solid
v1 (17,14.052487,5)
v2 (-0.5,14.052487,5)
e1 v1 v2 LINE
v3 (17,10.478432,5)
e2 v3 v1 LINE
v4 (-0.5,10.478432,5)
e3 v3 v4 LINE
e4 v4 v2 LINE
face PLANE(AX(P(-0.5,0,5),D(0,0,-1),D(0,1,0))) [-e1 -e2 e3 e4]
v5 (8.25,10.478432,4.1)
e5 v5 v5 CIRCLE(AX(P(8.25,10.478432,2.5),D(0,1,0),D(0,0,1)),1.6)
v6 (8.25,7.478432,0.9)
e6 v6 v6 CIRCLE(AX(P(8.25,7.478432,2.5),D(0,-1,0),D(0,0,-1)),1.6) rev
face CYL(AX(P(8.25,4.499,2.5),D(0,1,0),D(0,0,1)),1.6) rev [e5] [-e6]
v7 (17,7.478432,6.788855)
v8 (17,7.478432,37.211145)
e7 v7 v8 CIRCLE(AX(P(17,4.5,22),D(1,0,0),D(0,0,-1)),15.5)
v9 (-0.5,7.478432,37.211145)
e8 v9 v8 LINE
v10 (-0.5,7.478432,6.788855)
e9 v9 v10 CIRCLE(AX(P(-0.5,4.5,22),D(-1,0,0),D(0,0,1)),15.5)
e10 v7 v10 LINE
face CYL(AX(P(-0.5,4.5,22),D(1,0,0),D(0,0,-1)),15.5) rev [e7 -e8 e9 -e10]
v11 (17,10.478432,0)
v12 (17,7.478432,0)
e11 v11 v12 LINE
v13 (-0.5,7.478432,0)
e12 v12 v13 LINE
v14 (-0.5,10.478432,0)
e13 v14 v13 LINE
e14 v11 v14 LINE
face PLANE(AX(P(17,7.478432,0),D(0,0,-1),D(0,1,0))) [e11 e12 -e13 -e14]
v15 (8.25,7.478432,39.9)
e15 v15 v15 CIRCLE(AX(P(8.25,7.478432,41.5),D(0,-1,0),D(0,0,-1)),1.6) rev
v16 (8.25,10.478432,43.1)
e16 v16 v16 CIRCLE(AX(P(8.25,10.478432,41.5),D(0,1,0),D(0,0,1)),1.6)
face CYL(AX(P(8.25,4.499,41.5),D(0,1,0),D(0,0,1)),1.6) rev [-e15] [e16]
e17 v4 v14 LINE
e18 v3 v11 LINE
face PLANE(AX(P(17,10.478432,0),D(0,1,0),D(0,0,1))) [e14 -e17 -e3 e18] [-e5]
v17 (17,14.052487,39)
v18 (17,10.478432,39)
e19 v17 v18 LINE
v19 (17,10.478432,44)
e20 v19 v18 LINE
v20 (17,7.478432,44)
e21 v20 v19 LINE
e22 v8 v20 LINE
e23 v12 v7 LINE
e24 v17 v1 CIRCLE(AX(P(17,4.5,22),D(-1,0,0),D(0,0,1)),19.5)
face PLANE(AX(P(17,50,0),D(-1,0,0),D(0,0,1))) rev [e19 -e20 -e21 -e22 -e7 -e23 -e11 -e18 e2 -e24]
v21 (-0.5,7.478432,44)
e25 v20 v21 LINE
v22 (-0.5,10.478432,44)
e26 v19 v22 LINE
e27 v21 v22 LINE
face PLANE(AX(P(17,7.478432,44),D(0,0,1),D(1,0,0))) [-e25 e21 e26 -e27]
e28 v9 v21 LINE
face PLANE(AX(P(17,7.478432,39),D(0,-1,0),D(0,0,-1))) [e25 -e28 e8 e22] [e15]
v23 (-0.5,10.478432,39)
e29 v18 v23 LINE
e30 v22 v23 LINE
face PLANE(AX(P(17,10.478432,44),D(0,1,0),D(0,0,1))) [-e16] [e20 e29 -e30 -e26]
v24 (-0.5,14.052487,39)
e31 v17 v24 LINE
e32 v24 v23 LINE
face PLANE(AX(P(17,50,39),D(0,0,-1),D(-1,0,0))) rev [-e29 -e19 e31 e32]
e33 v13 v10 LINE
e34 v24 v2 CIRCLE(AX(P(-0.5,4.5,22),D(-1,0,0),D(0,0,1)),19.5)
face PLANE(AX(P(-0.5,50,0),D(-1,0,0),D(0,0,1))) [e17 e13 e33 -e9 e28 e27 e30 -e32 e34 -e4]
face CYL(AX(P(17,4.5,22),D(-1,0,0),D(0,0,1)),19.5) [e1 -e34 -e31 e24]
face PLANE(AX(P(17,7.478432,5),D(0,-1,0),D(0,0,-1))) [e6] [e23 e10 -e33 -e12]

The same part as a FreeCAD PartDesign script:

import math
import FreeCAD as App
import Part
import Sketcher
from FreeCAD import Vector
Q = App.Units.Quantity

doc = App.newDocument("Part")
body = doc.addObject("PartDesign::Body", "Body")

# Sketch on XZ plane
sketch1 = body.newObject("Sketcher::SketchObject", "Sketch")
sketch1.AttachmentSupport = (doc.getObject("XZ_Plane"), [""])
sketch1.MapMode = "FlatFace"
sketch1.addGeometry(Part.LineSegment(Vector(0, 0, 0), Vector(0, 40, 0)), False)
sketch1.addGeometry(Part.LineSegment(Vector(0, 40, 0), Vector(17, 40, 0)), False)
sketch1.addGeometry(Part.LineSegment(Vector(17, 40, 0), Vector(17, 0, 0)), False)
sketch1.addGeometry(Part.LineSegment(Vector(17, 0, 0), Vector(0, 0, 0)), False)
sketch1.addConstraint(Sketcher.Constraint("Coincident", 0, 2, 1, 1))
sketch1.addConstraint(Sketcher.Constraint("Coincident", 1, 2, 2, 1))
sketch1.addConstraint(Sketcher.Constraint("Coincident", 2, 2, 3, 1))
sketch1.addConstraint(Sketcher.Constraint("Coincident", 3, 2, 0, 1))
sketch1.addConstraint(Sketcher.Constraint("Vertical", 0))
sketch1.addConstraint(Sketcher.Constraint("Horizontal", 1))
sketch1.addConstraint(Sketcher.Constraint("Vertical", 2))
sketch1.addConstraint(Sketcher.Constraint("Horizontal", 3))
sketch1.addConstraint(Sketcher.Constraint("Coincident", 3, 2, -1, 1))
sketch1.addConstraint(Sketcher.Constraint("DistanceX", 1, 1, 1, 2, Q("17 mm")))
sketch1.addConstraint(Sketcher.Constraint("DistanceY", 0, 1, 0, 2, Q("40 mm")))
pad1 = body.newObject("PartDesign::Pad", "Pad")
pad1.Profile = sketch1
pad1.Length = 50
pad1.Reversed = True

# Sketch on XZ plane
sketch2 = body.newObject("Sketcher::SketchObject", "Sketch001")
sketch2.AttachmentSupport = (doc.getObject("XZ_Plane"), [""])
sketch2.MapMode = "FlatFace"
sketch2.addGeometry(Part.LineSegment(Vector(0, 40, 0), Vector(0, 39, 0)), False)
sketch2.addGeometry(Part.LineSegment(Vector(0, 39, 0), Vector(17, 39, 0)), False)
sketch2.addGeometry(Part.LineSegment(Vector(17, 39, 0), Vector(17, 40, 0)), False)
sketch2.addGeometry(Part.LineSegment(Vector(17, 40, 0), Vector(0, 40, 0)), False)
sketch2.addConstraint(Sketcher.Constraint("Coincident", 0, 2, 1, 1))
sketch2.addConstraint(Sketcher.Constraint("Coincident", 1, 2, 2, 1))
sketch2.addConstraint(Sketcher.Constraint("Coincident", 2, 2, 3, 1))
sketch2.addConstraint(Sketcher.Constraint("Coincident", 3, 2, 0, 1))
sketch2.addConstraint(Sketcher.Constraint("Vertical", 0))
sketch2.addConstraint(Sketcher.Constraint("Horizontal", 1))
sketch2.addConstraint(Sketcher.Constraint("Vertical", 2))
sketch2.addConstraint(Sketcher.Constraint("Horizontal", 3))
sketch2.addConstraint(Sketcher.Constraint("PointOnObject", 0, 2, -2))
sketch2.addConstraint(Sketcher.Constraint("DistanceX", 1, 1, 1, 2, Q("17 mm")))
sketch2.addConstraint(Sketcher.Constraint("DistanceY", 0, 2, 0, 1, Q("1 mm")))
sketch2.addConstraint(Sketcher.Constraint("DistanceY", -1, 1, 0, 2, Q("39 mm")))
pocket1 = body.newObject("PartDesign::Pocket", "Pocket")
pocket1.Profile = sketch2
pocket1.Type = "ThroughAll"

# Sketch on XZ plane
sketch3 = body.newObject("Sketcher::SketchObject", "Sketch002")
sketch3.AttachmentSupport = (doc.getObject("XZ_Plane"), [""])
sketch3.MapMode = "FlatFace"
sketch3.addGeometry(Part.LineSegment(Vector(-0.5, 39, 0), Vector(-0.5, 0, 0)), False)
sketch3.addGeometry(Part.LineSegment(Vector(-0.5, 0, 0), Vector(0, 0, 0)), False)
sketch3.addGeometry(Part.LineSegment(Vector(0, 0, 0), Vector(0, 39, 0)), False)
sketch3.addGeometry(Part.LineSegment(Vector(0, 39, 0), Vector(-0.5, 39, 0)), False)
sketch3.addConstraint(Sketcher.Constraint("Coincident", 0, 2, 1, 1))
sketch3.addConstraint(Sketcher.Constraint("Coincident", 1, 2, 2, 1))
sketch3.addConstraint(Sketcher.Constraint("Coincident", 2, 2, 3, 1))
sketch3.addConstraint(Sketcher.Constraint("Coincident", 3, 2, 0, 1))
sketch3.addConstraint(Sketcher.Constraint("Vertical", 0))
sketch3.addConstraint(Sketcher.Constraint("Horizontal", 1))
sketch3.addConstraint(Sketcher.Constraint("Vertical", 2))
sketch3.addConstraint(Sketcher.Constraint("Horizontal", 3))
sketch3.addConstraint(Sketcher.Constraint("Coincident", 1, 2, -1, 1))
sketch3.addConstraint(Sketcher.Constraint("DistanceY", 0, 2, 0, 1, Q("39 mm")))
sketch3.addConstraint(Sketcher.Constraint("DistanceX", 1, 1, 1, 2, Q("0.5 mm")))
pad2 = body.newObject("PartDesign::Pad", "Pad001")
pad2.Profile = sketch3
pad2.Length = 50
pad2.Reversed = True

# Sketch on YZ plane
sketch4 = body.newObject("Sketcher::SketchObject", "Sketch003")
sketch4.AttachmentSupport = (doc.getObject("YZ_Plane"), [""])
sketch4.MapMode = "FlatFace"
sketch4.AttachmentOffset = App.Placement(Vector(0, 0, 17), App.Rotation())
sketch4.addGeometry(Part.Circle(Vector(4, 22, 0), Vector(0, 0, 1), 16), False)
sketch4.addConstraint(Sketcher.Constraint("Diameter", 0, Q("31 mm")))
sketch4.addConstraint(Sketcher.Constraint("DistanceY", -1, 1, 0, 3, Q("22 mm")))
sketch4.addConstraint(Sketcher.Constraint("DistanceX", -1, 1, 0, 3, Q("4.5 mm")))
pocket2 = body.newObject("PartDesign::Pocket", "Pocket001")
pocket2.Profile = sketch4
pocket2.Length = 17.5

# Sketch on YZ plane
sketch5 = body.newObject("Sketcher::SketchObject", "Sketch004")
sketch5.AttachmentSupport = (doc.getObject("YZ_Plane"), [""])
sketch5.MapMode = "FlatFace"
sketch5.AttachmentOffset = App.Placement(Vector(0, 0, 17), App.Rotation())
sketch5.addGeometry(Part.LineSegment(Vector(3, 0, 0), Vector(50, 0, 0)), False)
sketch5.addGeometry(Part.LineSegment(Vector(50, 0, 0), Vector(50, 39, 0)), False)
sketch5.addGeometry(Part.LineSegment(Vector(50, 39, 0), Vector(24, 39, 0)), False)
sketch5.addGeometry(Part.LineSegment(Vector(24, 39, 0), Vector(24, 5, 0)), False)
sketch5.addGeometry(Part.LineSegment(Vector(24, 5, 0), Vector(3, 5, 0)), False)
sketch5.addGeometry(Part.LineSegment(Vector(3, 5, 0), Vector(3, 0, 0)), False)
sketch5.addConstraint(Sketcher.Constraint("Coincident", 0, 2, 1, 1))
sketch5.addConstraint(Sketcher.Constraint("Coincident", 1, 2, 2, 1))
sketch5.addConstraint(Sketcher.Constraint("Coincident", 2, 2, 3, 1))
sketch5.addConstraint(Sketcher.Constraint("Coincident", 3, 2, 4, 1))
sketch5.addConstraint(Sketcher.Constraint("Coincident", 4, 2, 5, 1))
sketch5.addConstraint(Sketcher.Constraint("Coincident", 5, 2, 0, 1))
sketch5.addConstraint(Sketcher.Constraint("Horizontal", 0))
sketch5.addConstraint(Sketcher.Constraint("Vertical", 1))
sketch5.addConstraint(Sketcher.Constraint("Horizontal", 2))
sketch5.addConstraint(Sketcher.Constraint("Vertical", 3))
sketch5.addConstraint(Sketcher.Constraint("Horizontal", 4))
sketch5.addConstraint(Sketcher.Constraint("Vertical", 5))
sketch5.addConstraint(Sketcher.Constraint("PointOnObject", 0, 2, -1))
sketch5.addConstraint(Sketcher.Constraint("DistanceX", 0, 1, 0, 2, Q("47 mm")))
sketch5.addConstraint(Sketcher.Constraint("DistanceX", 2, 2, 2, 1, Q("26 mm")))
sketch5.addConstraint(Sketcher.Constraint("DistanceY", 1, 1, 1, 2, Q("39 mm")))
sketch5.addConstraint(Sketcher.Constraint("DistanceY", 3, 2, 3, 1, Q("34 mm")))
sketch5.addConstraint(Sketcher.Constraint("DistanceX", -1, 1, 0, 2, Q("50 mm")))
pocket3 = body.newObject("PartDesign::Pocket", "Pocket002")
pocket3.Profile = sketch5
pocket3.Length = 17.5

# Sketch on XZ plane
sketch6 = body.newObject("Sketcher::SketchObject", "Sketch005")
sketch6.AttachmentSupport = (doc.getObject("XZ_Plane"), [""])
sketch6.MapMode = "FlatFace"
sketch6.AttachmentOffset = App.Placement(Vector(0, 0, -3), App.Rotation())
sketch6.addGeometry(Part.ArcOfCircle(Part.Circle(Vector(8.2, 2.5, 0), Vector(0, 0, 1), 1.6), math.radians(90), math.radians(270)), False)
sketch6.addGeometry(Part.ArcOfCircle(Part.Circle(Vector(8.2, 2.5, 0), Vector(0, 0, 1), 1.6), math.radians(0), math.radians(90)), False)
sketch6.addGeometry(Part.ArcOfCircle(Part.Circle(Vector(8.2, 2.5, 0), Vector(0, 0, 1), 1.6), math.radians(-90), math.radians(0)), False)
sketch6.addConstraint(Sketcher.Constraint("Tangent", 0, 1, 1, 2))
sketch6.addConstraint(Sketcher.Constraint("Tangent", 1, 1, 2, 2))
sketch6.addConstraint(Sketcher.Constraint("Tangent", 2, 1, 0, 2))
sketch6.addConstraint(Sketcher.Constraint("Horizontal", 2, 3, 1, 1))
sketch6.addConstraint(Sketcher.Constraint("Vertical", 2, 3, 0, 1))
sketch6.addConstraint(Sketcher.Constraint("Vertical", 0, 1, 2, 1))
sketch6.addConstraint(Sketcher.Constraint("Radius", 0, Q("1.6 mm")))
sketch6.addConstraint(Sketcher.Constraint("DistanceY", -1, 1, 0, 3, Q("2.5 mm")))
sketch6.addConstraint(Sketcher.Constraint("DistanceX", -1, 1, 0, 3, Q("8.25 mm")))
pocket4 = body.newObject("PartDesign::Pocket", "Pocket003")
pocket4.Profile = sketch6
pocket4.Length = 3
pocket4.Reversed = True

# Sketch on YZ plane
sketch7 = body.newObject("Sketcher::SketchObject", "Sketch006")
sketch7.AttachmentSupport = (doc.getObject("YZ_Plane"), [""])
sketch7.MapMode = "FlatFace"
sketch7.AttachmentOffset = App.Placement(Vector(0, 0, 63.5), App.Rotation())
sketch7.addGeometry(Part.LineSegment(Vector(4.5, -8.6, 0), Vector(-28.4, 17.3, 0)), False)
sketch7.addGeometry(Part.LineSegment(Vector(-28.4, 17.3, 0), Vector(0, 39, 0)), False)
sketch7.addGeometry(Part.LineSegment(Vector(0, 39, 0), Vector(4.5, 39, 0)), False)
sketch7.addGeometry(Part.LineSegment(Vector(4.5, 39, 0), Vector(4.5, 37.5, 0)), False)
sketch7.addGeometry(Part.ArcOfCircle(Part.Circle(Vector(4.5, 22, 0), Vector(0, 0, 1), 15.5), math.radians(-90), math.radians(90)), False)
sketch7.addGeometry(Part.LineSegment(Vector(4.5, 6.5, 0), Vector(4.5, -8.6, 0)), False)
sketch7.addConstraint(Sketcher.Constraint("Coincident", 0, 2, 1, 1))
sketch7.addConstraint(Sketcher.Constraint("Coincident", 1, 2, 2, 1))
sketch7.addConstraint(Sketcher.Constraint("Coincident", 2, 2, 3, 1))
sketch7.addConstraint(Sketcher.Constraint("Coincident", 3, 2, 4, 2))
sketch7.addConstraint(Sketcher.Constraint("Coincident", 4, 1, 5, 1))
sketch7.addConstraint(Sketcher.Constraint("Coincident", 5, 2, 0, 1))
sketch7.addConstraint(Sketcher.Constraint("Horizontal", 2))
sketch7.addConstraint(Sketcher.Constraint("Vertical", 3))
sketch7.addConstraint(Sketcher.Constraint("Vertical", 5))
sketch7.addConstraint(Sketcher.Constraint("PointOnObject", 1, 2, -2))
sketch7.addConstraint(Sketcher.Constraint("Vertical", 4, 3, 2, 2))
sketch7.addConstraint(Sketcher.Constraint("Vertical", 3, 2, 4, 1))
sketch7.addConstraint(Sketcher.Constraint("Radius", 4, Q("15.5 mm")))
sketch7.addConstraint(Sketcher.Constraint("DistanceX", 2, 1, 2, 2, Q("4.5 mm")))
sketch7.addConstraint(Sketcher.Constraint("DistanceY", 3, 2, 3, 1, Q("1.5 mm")))
sketch7.addConstraint(Sketcher.Constraint("DistanceY", -1, 1, 4, 3, Q("22 mm")))
sketch7.addConstraint(Sketcher.Constraint("DistanceY", 5, 2, 5, 1, Q("15.113522 mm")))
sketch7.addConstraint(Sketcher.Constraint("Distance", 0, Q("41.889755 mm")))
sketch7.addConstraint(Sketcher.Constraint("Distance", 1, Q("35.805035 mm")))
pocket5 = body.newObject("PartDesign::Pocket", "Pocket004")
pocket5.Profile = sketch7
pocket5.Length = 64

# Sketch on YZ plane
sketch8 = body.newObject("Sketcher::SketchObject", "Sketch007")
sketch8.AttachmentSupport = (doc.getObject("YZ_Plane"), [""])
sketch8.MapMode = "FlatFace"
sketch8.AttachmentOffset = App.Placement(Vector(0, 0, -0.5), App.Rotation())
sketch8.addGeometry(Part.LineSegment(Vector(10.5, 39, 0), Vector(7.5, 39, 0)), False)
sketch8.addGeometry(Part.LineSegment(Vector(7.5, 39, 0), Vector(7.5, 44, 0)), False)
sketch8.addGeometry(Part.LineSegment(Vector(7.5, 44, 0), Vector(10.5, 44, 0)), False)
sketch8.addGeometry(Part.LineSegment(Vector(10.5, 44, 0), Vector(10.5, 39, 0)), False)
sketch8.addGeometry(Part.LineSegment(Vector(10.5, 0, 0), Vector(7.5, 0, 0)), False)
sketch8.addGeometry(Part.LineSegment(Vector(7.5, 0, 0), Vector(7.5, 5, 0)), False)
sketch8.addGeometry(Part.LineSegment(Vector(7.5, 5, 0), Vector(10.5, 5, 0)), False)
sketch8.addGeometry(Part.LineSegment(Vector(10.5, 5, 0), Vector(10.5, 0, 0)), False)
sketch8.addConstraint(Sketcher.Constraint("Coincident", 0, 2, 1, 1))
sketch8.addConstraint(Sketcher.Constraint("Coincident", 1, 2, 2, 1))
sketch8.addConstraint(Sketcher.Constraint("Coincident", 2, 2, 3, 1))
sketch8.addConstraint(Sketcher.Constraint("Coincident", 3, 2, 0, 1))
sketch8.addConstraint(Sketcher.Constraint("Coincident", 4, 2, 5, 1))
sketch8.addConstraint(Sketcher.Constraint("Coincident", 5, 2, 6, 1))
sketch8.addConstraint(Sketcher.Constraint("Coincident", 6, 2, 7, 1))
sketch8.addConstraint(Sketcher.Constraint("Coincident", 7, 2, 4, 1))
sketch8.addConstraint(Sketcher.Constraint("Horizontal", 0))
sketch8.addConstraint(Sketcher.Constraint("Vertical", 1))
sketch8.addConstraint(Sketcher.Constraint("Horizontal", 2))
sketch8.addConstraint(Sketcher.Constraint("Vertical", 3))
sketch8.addConstraint(Sketcher.Constraint("Horizontal", 4))
sketch8.addConstraint(Sketcher.Constraint("Vertical", 5))
sketch8.addConstraint(Sketcher.Constraint("Horizontal", 6))
sketch8.addConstraint(Sketcher.Constraint("Vertical", 7))
sketch8.addConstraint(Sketcher.Constraint("PointOnObject", 4, 2, -1))
sketch8.addConstraint(Sketcher.Constraint("Vertical", 1, 2, 4, 2))
sketch8.addConstraint(Sketcher.Constraint("Vertical", 3, 2, 6, 2))
sketch8.addConstraint(Sketcher.Constraint("Equal", 3, 5))
sketch8.addConstraint(Sketcher.Constraint("DistanceX", 0, 2, 0, 1, Q("3 mm")))
sketch8.addConstraint(Sketcher.Constraint("DistanceY", 1, 1, 1, 2, Q("5 mm")))
sketch8.addConstraint(Sketcher.Constraint("DistanceY", -1, 1, 0, 2, Q("39 mm")))
sketch8.addConstraint(Sketcher.Constraint("DistanceX", -1, 1, 0, 2, Q("7.478432 mm")))
pad3 = body.newObject("PartDesign::Pad", "Pad002")
pad3.Profile = sketch8
pad3.Length = 17.5

# Sketch on YZ plane
sketch9 = body.newObject("Sketcher::SketchObject", "Sketch008")
sketch9.AttachmentSupport = (doc.getObject("YZ_Plane"), [""])
sketch9.MapMode = "FlatFace"
sketch9.AttachmentOffset = App.Placement(Vector(0, 0, -0.5), App.Rotation())
sketch9.addGeometry(Part.LineSegment(Vector(24, 5, 0), Vector(14, 5, 0)), False)
sketch9.addGeometry(Part.ArcOfCircle(Part.Circle(Vector(5, 22, 0), Vector(0, 0, 1), 19), math.radians(-61), math.radians(0)), False)
sketch9.addGeometry(Part.LineSegment(Vector(24, 22, 0), Vector(24, 5, 0)), False)
sketch9.addGeometry(Part.LineSegment(Vector(24, 39, 0), Vector(24, 22, 0)), False)
sketch9.addGeometry(Part.ArcOfCircle(Part.Circle(Vector(5, 22, 0), Vector(0, 0, 1), 19), math.radians(0), math.radians(61)), False)
sketch9.addGeometry(Part.LineSegment(Vector(14, 39, 0), Vector(24, 39, 0)), False)
sketch9.addConstraint(Sketcher.Constraint("Coincident", 0, 2, 1, 1))
sketch9.addConstraint(Sketcher.Constraint("Tangent", 1, 2, 2, 1))
sketch9.addConstraint(Sketcher.Constraint("Coincident", 2, 2, 0, 1))
sketch9.addConstraint(Sketcher.Constraint("Tangent", 3, 2, 4, 1))
sketch9.addConstraint(Sketcher.Constraint("Coincident", 4, 2, 5, 1))
sketch9.addConstraint(Sketcher.Constraint("Coincident", 5, 2, 3, 1))
sketch9.addConstraint(Sketcher.Constraint("Horizontal", 0))
sketch9.addConstraint(Sketcher.Constraint("Vertical", 2))
sketch9.addConstraint(Sketcher.Constraint("Vertical", 3))
sketch9.addConstraint(Sketcher.Constraint("Horizontal", 5))
sketch9.addConstraint(Sketcher.Constraint("Coincident", 4, 3, 1, 3))
sketch9.addConstraint(Sketcher.Constraint("Equal", 1, 4))
sketch9.addConstraint(Sketcher.Constraint("Vertical", 0, 2, 4, 2))
sketch9.addConstraint(Sketcher.Constraint("Radius", 1, Q("19.5 mm")))
sketch9.addConstraint(Sketcher.Constraint("DistanceY", 2, 2, 2, 1, Q("17 mm")))
sketch9.addConstraint(Sketcher.Constraint("DistanceY", -1, 1, 1, 3, Q("22 mm")))
sketch9.addConstraint(Sketcher.Constraint("DistanceX", -1, 1, 1, 2, Q("24 mm")))
pocket6 = body.newObject("PartDesign::Pocket", "Pocket005")
pocket6.Profile = sketch9
pocket6.Type = "ThroughAll"
pocket6.Midplane = True

# Sketch on XZ plane
sketch10 = body.newObject("Sketcher::SketchObject", "Sketch009")
sketch10.AttachmentSupport = (doc.getObject("XZ_Plane"), [""])
sketch10.MapMode = "FlatFace"
sketch10.AttachmentOffset = App.Placement(Vector(0, 0, -10.478432), App.Rotation())
sketch10.addGeometry(Part.ArcOfCircle(Part.Circle(Vector(8.2, 41.5, 0), Vector(0, 0, 1), 1.6), math.radians(-90), math.radians(0)), False)
sketch10.addGeometry(Part.LineSegment(Vector(8.2, 39.9, 0), Vector(8.2, 43.1, 0)), False)
sketch10.addGeometry(Part.ArcOfCircle(Part.Circle(Vector(8.2, 41.5, 0), Vector(0, 0, 1), 1.6), math.radians(0), math.radians(90)), False)
sketch10.addConstraint(Sketcher.Constraint("Coincident", 0, 1, 1, 1))
sketch10.addConstraint(Sketcher.Constraint("Coincident", 1, 2, 2, 2))
sketch10.addConstraint(Sketcher.Constraint("Tangent", 2, 1, 0, 2))
sketch10.addConstraint(Sketcher.Constraint("Vertical", 1))
sketch10.addConstraint(Sketcher.Constraint("Equal", 0, 2))
sketch10.addConstraint(Sketcher.Constraint("Horizontal", 0, 3, 2, 1))
sketch10.addConstraint(Sketcher.Constraint("Vertical", 2, 3, 0, 1))
sketch10.addConstraint(Sketcher.Constraint("Radius", 0, Q("1.6 mm")))
sketch10.addConstraint(Sketcher.Constraint("DistanceY", -1, 1, 0, 3, Q("41.5 mm")))
sketch10.addConstraint(Sketcher.Constraint("DistanceX", -1, 1, 0, 3, Q("8.25 mm")))
pocket7 = body.newObject("PartDesign::Pocket", "Pocket006")
pocket7.Profile = sketch10
pocket7.Type = "UpToFirst"
pocket7.Reversed = True

# Sketch on XZ plane
sketch11 = body.newObject("Sketcher::SketchObject", "Sketch010")
sketch11.AttachmentSupport = (doc.getObject("XZ_Plane"), [""])
sketch11.MapMode = "FlatFace"
sketch11.AttachmentOffset = App.Placement(Vector(0, 0, -10.478432), App.Rotation())
sketch11.addGeometry(Part.LineSegment(Vector(8.2, 43.1, 0), Vector(8.2, 39.9, 0)), False)
sketch11.addGeometry(Part.ArcOfCircle(Part.Circle(Vector(8.2, 41.5, 0), Vector(0, 0, 1), 1.6), math.radians(90), math.radians(270)), False)
sketch11.addConstraint(Sketcher.Constraint("Coincident", 0, 1, 1, 1))
sketch11.addConstraint(Sketcher.Constraint("Coincident", 1, 2, 0, 2))
sketch11.addConstraint(Sketcher.Constraint("Vertical", 0))
sketch11.addConstraint(Sketcher.Constraint("Vertical", 1, 3, 0, 1))
sketch11.addConstraint(Sketcher.Constraint("Radius", 1, Q("1.6 mm")))
sketch11.addConstraint(Sketcher.Constraint("DistanceY", -1, 1, 1, 3, Q("41.5 mm")))
sketch11.addConstraint(Sketcher.Constraint("DistanceX", -1, 1, 1, 3, Q("8.25 mm")))
pocket8 = body.newObject("PartDesign::Pocket", "Pocket007")
pocket8.Profile = sketch11
pocket8.Type = "UpToFirst"
pocket8.Reversed = True

# Sketch on XZ plane
sketch12 = body.newObject("Sketcher::SketchObject", "Sketch011")
sketch12.AttachmentSupport = (doc.getObject("XZ_Plane"), [""])
sketch12.MapMode = "FlatFace"
sketch12.AttachmentOffset = App.Placement(Vector(0, 0, -10.478432), App.Rotation())
sketch12.addGeometry(Part.ArcOfCircle(Part.Circle(Vector(8.2, 41.5, 0), Vector(0, 0, 1), 1.6), math.radians(-90), math.radians(0)), False)
sketch12.addGeometry(Part.LineSegment(Vector(8.2, 39.9, 0), Vector(8.2, 43.1, 0)), False)
sketch12.addGeometry(Part.ArcOfCircle(Part.Circle(Vector(8.2, 41.5, 0), Vector(0, 0, 1), 1.6), math.radians(0), math.radians(90)), False)
sketch12.addConstraint(Sketcher.Constraint("Coincident", 0, 1, 1, 1))
sketch12.addConstraint(Sketcher.Constraint("Coincident", 1, 2, 2, 2))
sketch12.addConstraint(Sketcher.Constraint("Tangent", 2, 1, 0, 2))
sketch12.addConstraint(Sketcher.Constraint("Vertical", 1))
sketch12.addConstraint(Sketcher.Constraint("Equal", 0, 2))
sketch12.addConstraint(Sketcher.Constraint("Horizontal", 0, 3, 2, 1))
sketch12.addConstraint(Sketcher.Constraint("Vertical", 2, 3, 0, 1))
sketch12.addConstraint(Sketcher.Constraint("Radius", 0, Q("1.6 mm")))
sketch12.addConstraint(Sketcher.Constraint("DistanceY", -1, 1, 0, 3, Q("41.5 mm")))
sketch12.addConstraint(Sketcher.Constraint("DistanceX", -1, 1, 0, 3, Q("8.25 mm")))
pocket9 = body.newObject("PartDesign::Pocket", "Pocket008")
pocket9.Profile = sketch12
pocket9.Length = 3
pocket9.Reversed = True

# Sketch on XZ plane
sketch13 = body.newObject("Sketcher::SketchObject", "Sketch012")
sketch13.AttachmentSupport = (doc.getObject("XZ_Plane"), [""])
sketch13.MapMode = "FlatFace"
sketch13.AttachmentOffset = App.Placement(Vector(0, 0, -10.478432), App.Rotation())
sketch13.addGeometry(Part.LineSegment(Vector(8.2, 43.1, 0), Vector(8.2, 39.9, 0)), False)
sketch13.addGeometry(Part.ArcOfCircle(Part.Circle(Vector(8.2, 41.5, 0), Vector(0, 0, 1), 1.6), math.radians(90), math.radians(270)), False)
sketch13.addConstraint(Sketcher.Constraint("Coincident", 0, 1, 1, 1))
sketch13.addConstraint(Sketcher.Constraint("Coincident", 1, 2, 0, 2))
sketch13.addConstraint(Sketcher.Constraint("Vertical", 0))
sketch13.addConstraint(Sketcher.Constraint("Vertical", 1, 3, 0, 1))
sketch13.addConstraint(Sketcher.Constraint("Radius", 1, Q("1.6 mm")))
sketch13.addConstraint(Sketcher.Constraint("DistanceY", -1, 1, 1, 3, Q("41.5 mm")))
sketch13.addConstraint(Sketcher.Constraint("DistanceX", -1, 1, 1, 3, Q("8.25 mm")))
pocket10 = body.newObject("PartDesign::Pocket", "Pocket009")
pocket10.Profile = sketch13
pocket10.Length = 3
pocket10.Reversed = True

# Sketch on XZ plane
sketch14 = body.newObject("Sketcher::SketchObject", "Sketch013")
sketch14.AttachmentSupport = (doc.getObject("XZ_Plane"), [""])
sketch14.MapMode = "FlatFace"
sketch14.AttachmentOffset = App.Placement(Vector(0, 0, -10.478432), App.Rotation())
sketch14.addGeometry(Part.ArcOfCircle(Part.Circle(Vector(8.2, 2.5, 0), Vector(0, 0, 1), 1.6), math.radians(-90), math.radians(0)), False)
sketch14.addGeometry(Part.LineSegment(Vector(8.2, 0.9, 0), Vector(8.2, 4.1, 0)), False)
sketch14.addGeometry(Part.ArcOfCircle(Part.Circle(Vector(8.2, 2.5, 0), Vector(0, 0, 1), 1.6), math.radians(0), math.radians(90)), False)
sketch14.addConstraint(Sketcher.Constraint("Coincident", 0, 1, 1, 1))
sketch14.addConstraint(Sketcher.Constraint("Coincident", 1, 2, 2, 2))
sketch14.addConstraint(Sketcher.Constraint("Tangent", 2, 1, 0, 2))
sketch14.addConstraint(Sketcher.Constraint("Vertical", 1))
sketch14.addConstraint(Sketcher.Constraint("Equal", 0, 2))
sketch14.addConstraint(Sketcher.Constraint("Horizontal", 0, 3, 2, 1))
sketch14.addConstraint(Sketcher.Constraint("Vertical", 2, 3, 0, 1))
sketch14.addConstraint(Sketcher.Constraint("Radius", 0, Q("1.6 mm")))
sketch14.addConstraint(Sketcher.Constraint("DistanceY", -1, 1, 0, 3, Q("2.5 mm")))
sketch14.addConstraint(Sketcher.Constraint("DistanceX", -1, 1, 0, 3, Q("8.25 mm")))
pocket11 = body.newObject("PartDesign::Pocket", "Pocket010")
pocket11.Profile = sketch14
pocket11.Type = "UpToFirst"
pocket11.Reversed = True

# Sketch on XZ plane
sketch15 = body.newObject("Sketcher::SketchObject", "Sketch014")
sketch15.AttachmentSupport = (doc.getObject("XZ_Plane"), [""])
sketch15.MapMode = "FlatFace"
sketch15.AttachmentOffset = App.Placement(Vector(0, 0, -10.478432), App.Rotation())
sketch15.addGeometry(Part.LineSegment(Vector(8.2, 4.1, 0), Vector(8.2, 0.9, 0)), False)
sketch15.addGeometry(Part.ArcOfCircle(Part.Circle(Vector(8.2, 2.5, 0), Vector(0, 0, 1), 1.6), math.radians(90), math.radians(270)), False)
sketch15.addConstraint(Sketcher.Constraint("Coincident", 0, 1, 1, 1))
sketch15.addConstraint(Sketcher.Constraint("Coincident", 1, 2, 0, 2))
sketch15.addConstraint(Sketcher.Constraint("Vertical", 0))
sketch15.addConstraint(Sketcher.Constraint("Vertical", 1, 3, 0, 1))
sketch15.addConstraint(Sketcher.Constraint("Radius", 1, Q("1.6 mm")))
sketch15.addConstraint(Sketcher.Constraint("DistanceY", -1, 1, 1, 3, Q("2.5 mm")))
sketch15.addConstraint(Sketcher.Constraint("DistanceX", -1, 1, 1, 3, Q("8.25 mm")))
pocket12 = body.newObject("PartDesign::Pocket", "Pocket011")
pocket12.Profile = sketch15
pocket12.Type = "UpToFirst"
pocket12.Reversed = True

# Sketch on XZ plane
sketch16 = body.newObject("Sketcher::SketchObject", "Sketch015")
sketch16.AttachmentSupport = (doc.getObject("XZ_Plane"), [""])
sketch16.MapMode = "FlatFace"
sketch16.AttachmentOffset = App.Placement(Vector(0, 0, -10.478432), App.Rotation())
sketch16.addGeometry(Part.ArcOfCircle(Part.Circle(Vector(8.2, 2.5, 0), Vector(0, 0, 1), 1.6), math.radians(-90), math.radians(0)), False)
sketch16.addGeometry(Part.LineSegment(Vector(8.2, 0.9, 0), Vector(8.2, 4.1, 0)), False)
sketch16.addGeometry(Part.ArcOfCircle(Part.Circle(Vector(8.2, 2.5, 0), Vector(0, 0, 1), 1.6), math.radians(0), math.radians(90)), False)
sketch16.addConstraint(Sketcher.Constraint("Coincident", 0, 1, 1, 1))
sketch16.addConstraint(Sketcher.Constraint("Coincident", 1, 2, 2, 2))
sketch16.addConstraint(Sketcher.Constraint("Tangent", 2, 1, 0, 2))
sketch16.addConstraint(Sketcher.Constraint("Vertical", 1))
sketch16.addConstraint(Sketcher.Constraint("Equal", 0, 2))
sketch16.addConstraint(Sketcher.Constraint("Horizontal", 0, 3, 2, 1))
sketch16.addConstraint(Sketcher.Constraint("Vertical", 2, 3, 0, 1))
sketch16.addConstraint(Sketcher.Constraint("Radius", 0, Q("1.6 mm")))
sketch16.addConstraint(Sketcher.Constraint("DistanceY", -1, 1, 0, 3, Q("2.5 mm")))
sketch16.addConstraint(Sketcher.Constraint("DistanceX", -1, 1, 0, 3, Q("8.25 mm")))
pocket13 = body.newObject("PartDesign::Pocket", "Pocket012")
pocket13.Profile = sketch16
pocket13.Length = 3
pocket13.Reversed = True

# Sketch on XZ plane
sketch17 = body.newObject("Sketcher::SketchObject", "Sketch016")
sketch17.AttachmentSupport = (doc.getObject("XZ_Plane"), [""])
sketch17.MapMode = "FlatFace"
sketch17.AttachmentOffset = App.Placement(Vector(0, 0, -10.478432), App.Rotation())
sketch17.addGeometry(Part.LineSegment(Vector(8.2, 4.1, 0), Vector(8.2, 0.9, 0)), False)
sketch17.addGeometry(Part.ArcOfCircle(Part.Circle(Vector(8.2, 2.5, 0), Vector(0, 0, 1), 1.6), math.radians(90), math.radians(270)), False)
sketch17.addConstraint(Sketcher.Constraint("Coincident", 0, 1, 1, 1))
sketch17.addConstraint(Sketcher.Constraint("Coincident", 1, 2, 0, 2))
sketch17.addConstraint(Sketcher.Constraint("Vertical", 0))
sketch17.addConstraint(Sketcher.Constraint("Vertical", 1, 3, 0, 1))
sketch17.addConstraint(Sketcher.Constraint("Radius", 1, Q("1.6 mm")))
sketch17.addConstraint(Sketcher.Constraint("DistanceY", -1, 1, 1, 3, Q("2.5 mm")))
sketch17.addConstraint(Sketcher.Constraint("DistanceX", -1, 1, 1, 3, Q("8.25 mm")))
pocket14 = body.newObject("PartDesign::Pocket", "Pocket013")
pocket14.Profile = sketch17
pocket14.Length = 3
pocket14.Reversed = True

# Sketch on YZ plane
sketch18 = body.newObject("Sketcher::SketchObject", "Sketch017")
sketch18.AttachmentSupport = (doc.getObject("YZ_Plane"), [""])
sketch18.MapMode = "FlatFace"
sketch18.AttachmentOffset = App.Placement(Vector(0, 0, 17), App.Rotation())
sketch18.addGeometry(Part.LineSegment(Vector(7.5, 37.2, 0), Vector(7.5, 39, 0)), False)
sketch18.addGeometry(Part.LineSegment(Vector(7.5, 39, 0), Vector(4.5, 39, 0)), False)
sketch18.addGeometry(Part.LineSegment(Vector(4.5, 39, 0), Vector(4.5, 37.5, 0)), False)
sketch18.addGeometry(Part.LineSegment(Vector(4.5, 37.5, 0), Vector(7.5, 37.2, 0)), False)
sketch18.addConstraint(Sketcher.Constraint("Coincident", 0, 2, 1, 1))
sketch18.addConstraint(Sketcher.Constraint("Coincident", 1, 2, 2, 1))
sketch18.addConstraint(Sketcher.Constraint("Coincident", 2, 2, 3, 1))
sketch18.addConstraint(Sketcher.Constraint("Coincident", 3, 2, 0, 1))
sketch18.addConstraint(Sketcher.Constraint("Vertical", 0))
sketch18.addConstraint(Sketcher.Constraint("Horizontal", 1))
sketch18.addConstraint(Sketcher.Constraint("Vertical", 2))
sketch18.addConstraint(Sketcher.Constraint("DistanceY", 2, 2, 2, 1, Q("1.5 mm")))
sketch18.addConstraint(Sketcher.Constraint("DistanceY", -1, 1, 0, 2, Q("39 mm")))
sketch18.addConstraint(Sketcher.Constraint("DistanceX", -1, 1, 1, 2, Q("4.5 mm")))
sketch18.addConstraint(Sketcher.Constraint("DistanceX", 1, 2, 1, 1, Q("2.978432 mm")))
sketch18.addConstraint(Sketcher.Constraint("DistanceY", 0, 1, 0, 2, Q("1.788855 mm")))
pocket15 = body.newObject("PartDesign::Pocket", "Pocket014")
pocket15.Profile = sketch18
pocket15.Type = "UpToFirst"

# Sketch on YZ plane
sketch19 = body.newObject("Sketcher::SketchObject", "Sketch018")
sketch19.AttachmentSupport = (doc.getObject("YZ_Plane"), [""])
sketch19.MapMode = "FlatFace"
sketch19.AttachmentOffset = App.Placement(Vector(0, 0, 17), App.Rotation())
sketch19.addGeometry(Part.LineSegment(Vector(7.5, 5, 0), Vector(7.5, 6.8, 0)), False)
sketch19.addGeometry(Part.LineSegment(Vector(7.5, 6.8, 0), Vector(4.5, 6.5, 0)), False)
sketch19.addGeometry(Part.LineSegment(Vector(4.5, 6.5, 0), Vector(4.5, 5, 0)), False)
sketch19.addGeometry(Part.LineSegment(Vector(4.5, 5, 0), Vector(7.5, 5, 0)), False)
sketch19.addConstraint(Sketcher.Constraint("Coincident", 0, 2, 1, 1))
sketch19.addConstraint(Sketcher.Constraint("Coincident", 1, 2, 2, 1))
sketch19.addConstraint(Sketcher.Constraint("Coincident", 2, 2, 3, 1))
sketch19.addConstraint(Sketcher.Constraint("Coincident", 3, 2, 0, 1))
sketch19.addConstraint(Sketcher.Constraint("Vertical", 0))
sketch19.addConstraint(Sketcher.Constraint("Vertical", 2))
sketch19.addConstraint(Sketcher.Constraint("Horizontal", 3))
sketch19.addConstraint(Sketcher.Constraint("DistanceY", 2, 2, 2, 1, Q("1.5 mm")))
sketch19.addConstraint(Sketcher.Constraint("DistanceY", -1, 1, 2, 2, Q("5 mm")))
sketch19.addConstraint(Sketcher.Constraint("DistanceX", -1, 1, 1, 2, Q("4.5 mm")))
sketch19.addConstraint(Sketcher.Constraint("DistanceX", 3, 1, 3, 2, Q("2.978432 mm")))
sketch19.addConstraint(Sketcher.Constraint("DistanceY", 0, 1, 0, 2, Q("1.788855 mm")))
pocket16 = body.newObject("PartDesign::Pocket", "Pocket015")
pocket16.Profile = sketch19
pocket16.Type = "UpToFirst"

doc.recompute()
